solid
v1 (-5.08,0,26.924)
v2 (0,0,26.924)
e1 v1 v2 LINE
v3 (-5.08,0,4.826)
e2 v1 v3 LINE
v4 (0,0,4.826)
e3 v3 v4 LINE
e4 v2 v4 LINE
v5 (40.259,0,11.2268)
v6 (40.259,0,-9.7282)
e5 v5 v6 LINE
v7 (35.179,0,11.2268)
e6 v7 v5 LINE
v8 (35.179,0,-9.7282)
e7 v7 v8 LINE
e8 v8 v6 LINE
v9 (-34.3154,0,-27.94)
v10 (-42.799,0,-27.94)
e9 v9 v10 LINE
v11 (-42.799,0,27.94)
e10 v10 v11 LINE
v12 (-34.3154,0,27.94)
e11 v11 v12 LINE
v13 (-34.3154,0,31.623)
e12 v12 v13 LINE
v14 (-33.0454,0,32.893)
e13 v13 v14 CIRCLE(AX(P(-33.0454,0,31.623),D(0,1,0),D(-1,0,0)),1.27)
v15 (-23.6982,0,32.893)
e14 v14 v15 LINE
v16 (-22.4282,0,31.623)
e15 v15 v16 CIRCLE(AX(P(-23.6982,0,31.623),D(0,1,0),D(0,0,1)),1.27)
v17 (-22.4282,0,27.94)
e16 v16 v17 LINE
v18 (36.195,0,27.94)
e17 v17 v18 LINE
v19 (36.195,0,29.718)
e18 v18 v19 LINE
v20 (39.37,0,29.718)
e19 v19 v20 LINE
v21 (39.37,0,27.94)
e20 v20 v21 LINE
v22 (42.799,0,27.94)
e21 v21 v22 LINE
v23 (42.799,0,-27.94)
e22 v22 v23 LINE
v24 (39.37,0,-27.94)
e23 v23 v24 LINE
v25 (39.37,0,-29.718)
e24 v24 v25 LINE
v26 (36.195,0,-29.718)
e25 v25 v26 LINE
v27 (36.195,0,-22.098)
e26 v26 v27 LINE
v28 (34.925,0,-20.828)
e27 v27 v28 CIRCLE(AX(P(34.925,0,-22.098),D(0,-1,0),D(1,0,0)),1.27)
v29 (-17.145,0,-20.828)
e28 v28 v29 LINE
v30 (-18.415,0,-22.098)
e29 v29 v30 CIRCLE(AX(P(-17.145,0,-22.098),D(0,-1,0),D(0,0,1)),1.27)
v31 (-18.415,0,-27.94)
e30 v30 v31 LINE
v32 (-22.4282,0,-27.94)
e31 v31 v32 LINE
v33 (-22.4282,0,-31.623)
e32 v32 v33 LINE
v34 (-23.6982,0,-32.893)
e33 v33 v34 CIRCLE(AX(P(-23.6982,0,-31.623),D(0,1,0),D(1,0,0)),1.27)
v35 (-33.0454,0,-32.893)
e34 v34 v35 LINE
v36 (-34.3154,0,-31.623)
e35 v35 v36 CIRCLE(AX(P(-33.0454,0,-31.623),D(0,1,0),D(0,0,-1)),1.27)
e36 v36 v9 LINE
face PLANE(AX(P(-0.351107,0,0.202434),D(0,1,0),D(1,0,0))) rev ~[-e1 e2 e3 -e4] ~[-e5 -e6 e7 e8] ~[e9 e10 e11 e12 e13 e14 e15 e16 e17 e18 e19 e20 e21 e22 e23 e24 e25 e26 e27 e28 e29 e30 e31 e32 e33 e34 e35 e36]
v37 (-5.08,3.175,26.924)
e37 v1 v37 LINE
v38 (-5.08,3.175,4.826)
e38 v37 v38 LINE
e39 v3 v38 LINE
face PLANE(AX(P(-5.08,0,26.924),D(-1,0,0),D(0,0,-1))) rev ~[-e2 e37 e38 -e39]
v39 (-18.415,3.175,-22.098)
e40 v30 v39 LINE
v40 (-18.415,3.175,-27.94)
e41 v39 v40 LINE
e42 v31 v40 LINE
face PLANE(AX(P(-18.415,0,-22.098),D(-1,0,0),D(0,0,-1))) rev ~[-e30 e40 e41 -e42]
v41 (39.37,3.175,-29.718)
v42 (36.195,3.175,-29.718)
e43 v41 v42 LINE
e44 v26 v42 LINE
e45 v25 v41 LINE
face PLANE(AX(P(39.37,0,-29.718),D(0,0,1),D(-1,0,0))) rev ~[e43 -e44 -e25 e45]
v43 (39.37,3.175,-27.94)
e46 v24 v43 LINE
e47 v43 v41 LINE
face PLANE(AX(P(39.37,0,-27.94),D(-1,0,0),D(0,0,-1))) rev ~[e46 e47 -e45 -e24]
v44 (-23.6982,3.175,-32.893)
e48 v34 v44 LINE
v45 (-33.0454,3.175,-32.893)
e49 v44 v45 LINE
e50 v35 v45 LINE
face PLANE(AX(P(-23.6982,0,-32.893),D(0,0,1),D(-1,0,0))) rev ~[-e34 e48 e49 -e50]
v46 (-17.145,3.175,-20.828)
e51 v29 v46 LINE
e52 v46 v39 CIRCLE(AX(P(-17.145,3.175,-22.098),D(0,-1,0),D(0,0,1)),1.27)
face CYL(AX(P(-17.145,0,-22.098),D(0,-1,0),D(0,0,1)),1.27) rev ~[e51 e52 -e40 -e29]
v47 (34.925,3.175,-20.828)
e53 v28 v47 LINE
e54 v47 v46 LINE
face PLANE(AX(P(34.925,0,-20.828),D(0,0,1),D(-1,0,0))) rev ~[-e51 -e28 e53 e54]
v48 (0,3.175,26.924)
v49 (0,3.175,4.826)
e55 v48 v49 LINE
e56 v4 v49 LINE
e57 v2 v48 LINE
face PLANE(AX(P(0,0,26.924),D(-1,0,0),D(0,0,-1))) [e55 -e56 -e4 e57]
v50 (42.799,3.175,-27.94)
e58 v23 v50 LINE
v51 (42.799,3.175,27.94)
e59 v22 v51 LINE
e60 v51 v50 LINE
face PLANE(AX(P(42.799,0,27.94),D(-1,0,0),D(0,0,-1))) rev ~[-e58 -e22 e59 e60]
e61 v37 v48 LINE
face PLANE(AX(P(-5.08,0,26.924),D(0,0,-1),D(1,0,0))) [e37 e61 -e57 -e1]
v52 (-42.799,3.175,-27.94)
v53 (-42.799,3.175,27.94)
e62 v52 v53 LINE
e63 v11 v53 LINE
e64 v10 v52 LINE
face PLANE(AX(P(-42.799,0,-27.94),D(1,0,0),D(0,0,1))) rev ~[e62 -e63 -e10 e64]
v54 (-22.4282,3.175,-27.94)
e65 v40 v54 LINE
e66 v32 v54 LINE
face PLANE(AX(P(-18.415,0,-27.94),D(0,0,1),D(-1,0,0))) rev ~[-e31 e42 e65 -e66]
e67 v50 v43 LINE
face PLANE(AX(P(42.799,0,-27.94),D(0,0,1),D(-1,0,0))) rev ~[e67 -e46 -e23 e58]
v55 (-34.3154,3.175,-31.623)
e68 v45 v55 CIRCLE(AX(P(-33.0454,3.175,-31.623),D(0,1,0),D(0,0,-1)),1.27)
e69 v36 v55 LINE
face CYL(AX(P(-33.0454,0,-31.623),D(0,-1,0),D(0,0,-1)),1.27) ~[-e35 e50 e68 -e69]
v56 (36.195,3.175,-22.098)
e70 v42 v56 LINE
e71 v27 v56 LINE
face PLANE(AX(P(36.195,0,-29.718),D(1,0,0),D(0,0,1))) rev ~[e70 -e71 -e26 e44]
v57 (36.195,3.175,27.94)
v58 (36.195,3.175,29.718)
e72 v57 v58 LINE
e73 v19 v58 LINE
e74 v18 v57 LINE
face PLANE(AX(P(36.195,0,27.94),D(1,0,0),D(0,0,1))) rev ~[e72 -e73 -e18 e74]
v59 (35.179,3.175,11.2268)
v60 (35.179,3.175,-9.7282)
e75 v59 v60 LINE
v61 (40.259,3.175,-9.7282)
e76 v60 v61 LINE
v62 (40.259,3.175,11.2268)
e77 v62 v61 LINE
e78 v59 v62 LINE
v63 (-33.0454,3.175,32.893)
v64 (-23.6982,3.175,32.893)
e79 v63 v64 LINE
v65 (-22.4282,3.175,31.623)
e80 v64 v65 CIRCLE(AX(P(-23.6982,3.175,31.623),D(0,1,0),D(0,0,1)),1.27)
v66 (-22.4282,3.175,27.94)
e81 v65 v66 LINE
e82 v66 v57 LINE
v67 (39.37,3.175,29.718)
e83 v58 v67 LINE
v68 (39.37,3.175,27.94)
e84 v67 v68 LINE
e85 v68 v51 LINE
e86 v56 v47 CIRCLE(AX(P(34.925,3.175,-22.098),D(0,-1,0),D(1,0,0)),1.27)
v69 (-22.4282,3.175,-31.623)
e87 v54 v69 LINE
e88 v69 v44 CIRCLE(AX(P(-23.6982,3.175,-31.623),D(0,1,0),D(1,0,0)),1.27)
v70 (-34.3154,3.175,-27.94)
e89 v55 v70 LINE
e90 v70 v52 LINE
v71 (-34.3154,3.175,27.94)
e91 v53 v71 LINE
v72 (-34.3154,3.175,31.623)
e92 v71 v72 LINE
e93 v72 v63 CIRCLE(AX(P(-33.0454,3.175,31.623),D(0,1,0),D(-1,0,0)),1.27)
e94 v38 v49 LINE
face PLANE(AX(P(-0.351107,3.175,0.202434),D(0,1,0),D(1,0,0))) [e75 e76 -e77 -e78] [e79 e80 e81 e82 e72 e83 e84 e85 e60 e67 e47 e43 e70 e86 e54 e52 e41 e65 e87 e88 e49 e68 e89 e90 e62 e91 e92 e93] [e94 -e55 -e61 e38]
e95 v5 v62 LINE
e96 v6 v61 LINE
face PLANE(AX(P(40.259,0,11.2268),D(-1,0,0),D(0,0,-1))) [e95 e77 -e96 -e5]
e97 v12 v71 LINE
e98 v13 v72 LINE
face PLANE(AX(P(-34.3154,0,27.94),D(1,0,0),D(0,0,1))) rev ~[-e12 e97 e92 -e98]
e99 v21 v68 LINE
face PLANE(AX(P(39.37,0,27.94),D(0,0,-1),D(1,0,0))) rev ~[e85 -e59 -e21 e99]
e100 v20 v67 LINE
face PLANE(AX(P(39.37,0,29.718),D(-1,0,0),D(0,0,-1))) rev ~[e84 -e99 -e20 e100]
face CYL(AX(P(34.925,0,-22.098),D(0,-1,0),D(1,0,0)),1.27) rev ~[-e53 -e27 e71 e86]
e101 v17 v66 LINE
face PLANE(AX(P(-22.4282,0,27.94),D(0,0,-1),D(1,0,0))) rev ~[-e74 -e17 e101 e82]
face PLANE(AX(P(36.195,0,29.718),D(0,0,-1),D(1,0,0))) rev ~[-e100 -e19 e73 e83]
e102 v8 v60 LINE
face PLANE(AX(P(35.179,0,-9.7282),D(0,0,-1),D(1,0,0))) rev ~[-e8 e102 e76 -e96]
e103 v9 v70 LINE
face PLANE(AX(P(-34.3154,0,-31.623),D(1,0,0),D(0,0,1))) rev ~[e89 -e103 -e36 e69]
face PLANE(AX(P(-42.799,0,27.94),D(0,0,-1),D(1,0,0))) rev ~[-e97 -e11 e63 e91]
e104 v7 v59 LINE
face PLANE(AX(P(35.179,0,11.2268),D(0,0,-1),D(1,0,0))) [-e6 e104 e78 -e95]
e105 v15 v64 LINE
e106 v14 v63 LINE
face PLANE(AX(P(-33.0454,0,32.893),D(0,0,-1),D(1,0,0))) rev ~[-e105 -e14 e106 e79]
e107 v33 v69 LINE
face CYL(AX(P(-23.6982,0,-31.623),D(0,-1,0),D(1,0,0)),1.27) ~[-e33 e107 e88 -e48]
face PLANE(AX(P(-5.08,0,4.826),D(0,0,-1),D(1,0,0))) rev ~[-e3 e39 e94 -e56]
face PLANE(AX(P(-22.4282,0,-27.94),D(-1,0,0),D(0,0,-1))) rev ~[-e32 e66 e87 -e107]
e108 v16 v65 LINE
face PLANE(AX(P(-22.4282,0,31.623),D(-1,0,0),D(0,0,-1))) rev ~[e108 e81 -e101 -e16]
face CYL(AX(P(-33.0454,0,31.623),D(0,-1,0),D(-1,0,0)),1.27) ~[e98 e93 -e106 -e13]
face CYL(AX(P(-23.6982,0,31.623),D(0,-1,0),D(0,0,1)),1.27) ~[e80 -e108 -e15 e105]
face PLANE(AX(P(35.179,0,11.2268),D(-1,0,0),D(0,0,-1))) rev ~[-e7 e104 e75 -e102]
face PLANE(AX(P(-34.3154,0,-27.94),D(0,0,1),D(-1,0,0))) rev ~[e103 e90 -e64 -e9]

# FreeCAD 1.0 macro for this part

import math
import FreeCAD as App
import Part
import Sketcher
Q = App.Units.Quantity


def add_polygon(sketch, points):
    """Adds a closed chain of lines whose ends are joined by coincident constraints."""
    first, n = sketch.GeometryCount, len(points)
    for a, b in zip(points, points[1:] + points[:1]):
        sketch.addGeometry(Part.LineSegment(App.Vector(*a, 0), App.Vector(*b, 0)), False)
    for i in range(n):
        sketch.addConstraint(Sketcher.Constraint("Coincident", first + i, 2, first + (i + 1) % n, 1))

doc = App.newDocument("Part")
body = doc.addObject("PartDesign::Body", "Body")

sketch1 = body.newObject("Sketcher::SketchObject", "Sketch")
sketch1.AttachmentSupport = (doc.getObject("XZ_Plane"), [""])
sketch1.MapMode = "FlatFace"
sketch1.addGeometry(Part.ArcOfCircle(Part.Circle(App.Vector(34.9, -22.1, 0), App.Vector(0, 0, 1), 1.3), math.radians(0), math.radians(90)), False)
sketch1.addGeometry(Part.LineSegment(App.Vector(34.9, -20.8, 0), App.Vector(-17.1, -20.8, 0)), False)
sketch1.addGeometry(Part.ArcOfCircle(Part.Circle(App.Vector(-17.1, -22.1, 0), App.Vector(0, 0, 1), 1.3), math.radians(90), math.radians(180)), False)
sketch1.addGeometry(Part.LineSegment(App.Vector(-18.4, -22.1, 0), App.Vector(-18.4, -27.9, 0)), False)
sketch1.addGeometry(Part.LineSegment(App.Vector(-18.4, -27.9, 0), App.Vector(-22.4, -27.9, 0)), False)
sketch1.addGeometry(Part.LineSegment(App.Vector(-22.4, -27.9, 0), App.Vector(-22.4, -31.6, 0)), False)
sketch1.addGeometry(Part.ArcOfCircle(Part.Circle(App.Vector(-23.7, -31.6, 0), App.Vector(0, 0, 1), 1.3), math.radians(-90), math.radians(0)), False)
sketch1.addGeometry(Part.LineSegment(App.Vector(-23.7, -32.9, 0), App.Vector(-33, -32.9, 0)), False)
sketch1.addGeometry(Part.ArcOfCircle(Part.Circle(App.Vector(-33, -31.6, 0), App.Vector(0, 0, 1), 1.3), math.radians(180), math.radians(270)), False)
sketch1.addGeometry(Part.LineSegment(App.Vector(-34.3, -31.6, 0), App.Vector(-34.3, -27.9, 0)), False)
sketch1.addGeometry(Part.LineSegment(App.Vector(-34.3, -27.9, 0), App.Vector(-42.8, -27.9, 0)), False)
sketch1.addGeometry(Part.LineSegment(App.Vector(-42.8, -27.9, 0), App.Vector(-42.8, 27.9, 0)), False)
sketch1.addGeometry(Part.LineSegment(App.Vector(-42.8, 27.9, 0), App.Vector(-34.3, 27.9, 0)), False)
sketch1.addGeometry(Part.LineSegment(App.Vector(-34.3, 27.9, 0), App.Vector(-34.3, 31.6, 0)), False)
sketch1.addGeometry(Part.ArcOfCircle(Part.Circle(App.Vector(-33, 31.6, 0), App.Vector(0, 0, 1), 1.3), math.radians(90), math.radians(180)), False)
sketch1.addGeometry(Part.LineSegment(App.Vector(-33, 32.9, 0), App.Vector(-23.7, 32.9, 0)), False)
sketch1.addGeometry(Part.ArcOfCircle(Part.Circle(App.Vector(-23.7, 31.6, 0), App.Vector(0, 0, 1), 1.3), math.radians(0), math.radians(90)), False)
sketch1.addGeometry(Part.LineSegment(App.Vector(-22.4, 31.6, 0), App.Vector(-22.4, 27.9, 0)), False)
sketch1.addGeometry(Part.LineSegment(App.Vector(-22.4, 27.9, 0), App.Vector(36.2, 27.9, 0)), False)
sketch1.addGeometry(Part.LineSegment(App.Vector(36.2, 27.9, 0), App.Vector(36.2, 29.7, 0)), False)
sketch1.addGeometry(Part.LineSegment(App.Vector(36.2, 29.7, 0), App.Vector(39.4, 29.7, 0)), False)
sketch1.addGeometry(Part.LineSegment(App.Vector(39.4, 29.7, 0), App.Vector(39.4, 27.9, 0)), False)
sketch1.addGeometry(Part.LineSegment(App.Vector(39.4, 27.9, 0), App.Vector(42.8, 27.9, 0)), False)
sketch1.addGeometry(Part.LineSegment(App.Vector(42.8, 27.9, 0), App.Vector(42.8, -27.9, 0)), False)
sketch1.addGeometry(Part.LineSegment(App.Vector(42.8, -27.9, 0), App.Vector(39.4, -27.9, 0)), False)
sketch1.addGeometry(Part.LineSegment(App.Vector(39.4, -27.9, 0), App.Vector(39.4, -29.7, 0)), False)
sketch1.addGeometry(Part.LineSegment(App.Vector(39.4, -29.7, 0), App.Vector(36.2, -29.7, 0)), False)
sketch1.addGeometry(Part.LineSegment(App.Vector(36.2, -29.7, 0), App.Vector(36.2, -22.1, 0)), False)
add_polygon(sketch1, [(0, 26.9), (-5.1, 26.9), (-5.1, 4.8), (0, 4.8)])
add_polygon(sketch1, [(40.3, 11.2), (35.2, 11.2), (35.2, -9.7), (40.3, -9.7)])
sketch1.addConstraint([
    Sketcher.Constraint("Tangent", 0, 2, 1, 1),
    Sketcher.Constraint("Tangent", 1, 2, 2, 1),
    Sketcher.Constraint("Tangent", 2, 2, 3, 1),
    Sketcher.Constraint("Coincident", 3, 2, 4, 1),
    Sketcher.Constraint("Coincident", 4, 2, 5, 1),
    Sketcher.Constraint("Tangent", 5, 2, 6, 2),
    Sketcher.Constraint("Tangent", 6, 1, 7, 1),
    Sketcher.Constraint("Tangent", 7, 2, 8, 2),
    Sketcher.Constraint("Tangent", 8, 1, 9, 1),
    Sketcher.Constraint("Coincident", 9, 2, 10, 1),
    Sketcher.Constraint("Coincident", 10, 2, 11, 1),
    Sketcher.Constraint("Coincident", 11, 2, 12, 1),
    Sketcher.Constraint("Coincident", 12, 2, 13, 1),
    Sketcher.Constraint("Tangent", 13, 2, 14, 2),
    Sketcher.Constraint("Tangent", 14, 1, 15, 1),
    Sketcher.Constraint("Tangent", 15, 2, 16, 2),
    Sketcher.Constraint("Tangent", 16, 1, 17, 1),
    Sketcher.Constraint("Coincident", 17, 2, 18, 1),
    Sketcher.Constraint("Coincident", 18, 2, 19, 1),
    Sketcher.Constraint("Coincident", 19, 2, 20, 1),
    Sketcher.Constraint("Coincident", 20, 2, 21, 1),
    Sketcher.Constraint("Coincident", 21, 2, 22, 1),
    Sketcher.Constraint("Coincident", 22, 2, 23, 1),
    Sketcher.Constraint("Coincident", 23, 2, 24, 1),
    Sketcher.Constraint("Coincident", 24, 2, 25, 1),
    Sketcher.Constraint("Coincident", 25, 2, 26, 1),
    Sketcher.Constraint("Coincident", 26, 2, 27, 1),
    Sketcher.Constraint("Tangent", 27, 2, 0, 1),
    Sketcher.Constraint("Horizontal", 1),
    Sketcher.Constraint("Vertical", 3),
    Sketcher.Constraint("Horizontal", 4),
    Sketcher.Constraint("Vertical", 5),
    Sketcher.Constraint("Horizontal", 7),
    Sketcher.Constraint("Vertical", 9),
    Sketcher.Constraint("Horizontal", 10),
    Sketcher.Constraint("Vertical", 11),
    Sketcher.Constraint("Horizontal", 12),
    Sketcher.Constraint("Vertical", 13),
    Sketcher.Constraint("Horizontal", 15),
    Sketcher.Constraint("Vertical", 17),
    Sketcher.Constraint("Horizontal", 18),
    Sketcher.Constraint("Vertical", 19),
    Sketcher.Constraint("Horizontal", 20),
    Sketcher.Constraint("Vertical", 21),
    Sketcher.Constraint("Horizontal", 22),
    Sketcher.Constraint("Vertical", 23),
    Sketcher.Constraint("Horizontal", 24),
    Sketcher.Constraint("Vertical", 25),
    Sketcher.Constraint("Horizontal", 26),
    Sketcher.Constraint("Vertical", 27),
    Sketcher.Constraint("Horizontal", 28),
    Sketcher.Constraint("Vertical", 29),
    Sketcher.Constraint("Horizontal", 30),
    Sketcher.Constraint("Vertical", 31),
    Sketcher.Constraint("Horizontal", 32),
    Sketcher.Constraint("Vertical", 33),
    Sketcher.Constraint("Horizontal", 34),
    Sketcher.Constraint("Vertical", 35),
    Sketcher.Constraint("Equal", 0, 2),
    Sketcher.Constraint("Equal", 2, 6),
    Sketcher.Constraint("Equal", 6, 8),
    Sketcher.Constraint("Equal", 8, 14),
    Sketcher.Constraint("Equal", 14, 16),
    Sketcher.Constraint("Symmetric", 10, 2, 22, 2, -1, 1),
    Sketcher.Constraint("Symmetric", 8, 3, 14, 3, -1),
    Sketcher.Constraint("Symmetric", 4, 2, 17, 2, -1),
    Sketcher.Constraint("Symmetric", 21, 2, 24, 2, -1),
    Sketcher.Constraint("Symmetric", 19, 2, 26, 2, -1),
    Sketcher.Constraint("PointOnObject", 30, 2, -2),
    Sketcher.Constraint("Horizontal", 4, 2, 9, 2),
    Sketcher.Constraint("Horizontal", 12, 2, 17, 2),
    Sketcher.Constraint("Equal", 30, 32),
    Sketcher.Constraint("Radius", 0, Q("0.05 in")),
    Sketcher.Constraint("DistanceX", 28, 2, 28, 1, Q("0.2 in")),
    Sketcher.Constraint("DistanceY", 11, 1, 11, 2, Q("2.2 in")),
    Sketcher.Constraint("DistanceY", 27, 1, 27, 2, Q("0.3 in")),
    Sketcher.Constraint("DistanceX", 1, 2, 1, 1, Q("2.05 in")),
    Sketcher.Constraint("DistanceY", 3, 2, 3, 1, Q("0.23 in")),
    Sketcher.Constraint("DistanceY", 29, 2, 29, 1, Q("0.87 in")),
    Sketcher.Constraint("DistanceX", 32, 2, 22, 2, Q("0.3 in")),
    Sketcher.Constraint("DistanceX", 4, 2, 4, 1, Q("0.158 in")),
    Sketcher.Constraint("DistanceX", 7, 2, 7, 1, Q("0.368 in")),
    Sketcher.Constraint("DistanceX", 10, 2, 10, 1, Q("0.334 in")),
    Sketcher.Constraint("DistanceX", 20, 1, 20, 2, Q("0.125 in")),
    Sketcher.Constraint("DistanceX", 22, 1, 22, 2, Q("0.135 in")),
    Sketcher.Constraint("DistanceY", 5, 2, 5, 1, Q("0.145 in")),
    Sketcher.Constraint("DistanceY", 33, 2, 33, 1, Q("0.825 in")),
    Sketcher.Constraint("DistanceY", -1, 1, 28, 2, Q("1.06 in")),
    Sketcher.Constraint("DistanceY", -1, 1, 32, 2, Q("0.442 in")),
])
pad1 = body.newObject("PartDesign::Pad", "Pad")
pad1.Profile = sketch1
pad1.Length = Q("0.125 in")
pad1.Reversed = True

doc.recompute()
